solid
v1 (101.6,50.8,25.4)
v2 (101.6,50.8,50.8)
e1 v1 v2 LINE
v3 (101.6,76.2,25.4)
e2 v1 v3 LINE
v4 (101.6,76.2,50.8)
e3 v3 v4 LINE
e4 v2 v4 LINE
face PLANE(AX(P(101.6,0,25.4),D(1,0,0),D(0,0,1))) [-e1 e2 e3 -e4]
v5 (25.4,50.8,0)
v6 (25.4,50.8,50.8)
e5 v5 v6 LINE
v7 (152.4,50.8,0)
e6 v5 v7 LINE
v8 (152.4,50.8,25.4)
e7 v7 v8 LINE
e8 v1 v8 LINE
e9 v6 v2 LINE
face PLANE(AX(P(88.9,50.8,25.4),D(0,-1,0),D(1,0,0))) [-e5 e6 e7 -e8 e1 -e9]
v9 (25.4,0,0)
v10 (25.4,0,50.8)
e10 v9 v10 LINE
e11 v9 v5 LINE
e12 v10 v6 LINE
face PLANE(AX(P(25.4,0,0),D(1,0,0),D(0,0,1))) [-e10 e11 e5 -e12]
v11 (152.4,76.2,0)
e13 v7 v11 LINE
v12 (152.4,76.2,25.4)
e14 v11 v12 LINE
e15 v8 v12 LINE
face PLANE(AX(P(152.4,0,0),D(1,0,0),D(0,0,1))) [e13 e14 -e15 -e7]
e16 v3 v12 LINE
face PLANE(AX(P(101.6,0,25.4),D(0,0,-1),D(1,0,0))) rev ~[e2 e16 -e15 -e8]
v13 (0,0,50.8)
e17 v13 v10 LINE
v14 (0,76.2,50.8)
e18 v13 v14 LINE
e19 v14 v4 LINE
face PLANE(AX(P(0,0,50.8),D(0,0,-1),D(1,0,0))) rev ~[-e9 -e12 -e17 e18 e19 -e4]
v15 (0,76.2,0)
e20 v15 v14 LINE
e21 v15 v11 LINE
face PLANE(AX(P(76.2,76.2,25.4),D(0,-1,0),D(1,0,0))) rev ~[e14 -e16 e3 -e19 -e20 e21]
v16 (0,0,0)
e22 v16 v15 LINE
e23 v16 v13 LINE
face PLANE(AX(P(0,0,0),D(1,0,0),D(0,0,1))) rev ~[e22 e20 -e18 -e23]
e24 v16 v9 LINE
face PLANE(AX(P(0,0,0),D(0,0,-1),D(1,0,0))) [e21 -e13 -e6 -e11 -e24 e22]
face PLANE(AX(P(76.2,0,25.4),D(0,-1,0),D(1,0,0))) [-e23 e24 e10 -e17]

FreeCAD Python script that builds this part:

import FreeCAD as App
import Part
import Sketcher
Q = App.Units.Quantity

doc = App.newDocument("Part")
body = doc.addObject("PartDesign::Body", "Body")

sketch1 = body.newObject("Sketcher::SketchObject", "Sketch")
sketch1.AttachmentSupport = (doc.getObject("XZ_Plane"), [""])
sketch1.MapMode = "FlatFace"
sketch1.addGeometry([
    Part.LineSegment(App.Vector(0, 51, 0), App.Vector(0, 0, 0)),
    Part.LineSegment(App.Vector(0, 0, 0), App.Vector(152, 0, 0)),
    Part.LineSegment(App.Vector(152, 0, 0), App.Vector(152, 51, 0)),
    Part.LineSegment(App.Vector(152, 51, 0), App.Vector(0, 51, 0)),
], False)
sketch1.addConstraint([
    Sketcher.Constraint("Coincident", 0, 2, 1, 1),
    Sketcher.Constraint("Coincident", 1, 2, 2, 1),
    Sketcher.Constraint("Coincident", 2, 2, 3, 1),
    Sketcher.Constraint("Coincident", 3, 2, 0, 1),
    Sketcher.Constraint("Vertical", 0),
    Sketcher.Constraint("Horizontal", 1),
    Sketcher.Constraint("Vertical", 2),
    Sketcher.Constraint("Horizontal", 3),
    Sketcher.Constraint("Coincident", 0, 2, -1, 1),
    Sketcher.Constraint("DistanceX", 1, 1, 1, 2, Q("6 in")),
    Sketcher.Constraint("DistanceY", 0, 2, 0, 1, Q("2 in")),
])
pad1 = body.newObject("PartDesign::Pad", "Pad")
pad1.Profile = sketch1
pad1.Length = Q("3 in")
pad1.Reversed = True

sketch2 = body.newObject("Sketcher::SketchObject", "Sketch001")
sketch2.AttachmentSupport = (doc.getObject("XZ_Plane"), [""])
sketch2.MapMode = "FlatFace"
sketch2.addGeometry([
    Part.LineSegment(App.Vector(25, 51, 0), App.Vector(25, 0, 0)),
    Part.LineSegment(App.Vector(25, 0, 0), App.Vector(152, 0, 0)),
    Part.LineSegment(App.Vector(152, 0, 0), App.Vector(152, 51, 0)),
    Part.LineSegment(App.Vector(152, 51, 0), App.Vector(25, 51, 0)),
], False)
sketch2.addConstraint([
    Sketcher.Constraint("Coincident", 0, 2, 1, 1),
    Sketcher.Constraint("Coincident", 1, 2, 2, 1),
    Sketcher.Constraint("Coincident", 2, 2, 3, 1),
    Sketcher.Constraint("Coincident", 3, 2, 0, 1),
    Sketcher.Constraint("Vertical", 0),
    Sketcher.Constraint("Horizontal", 1),
    Sketcher.Constraint("Vertical", 2),
    Sketcher.Constraint("Horizontal", 3),
    Sketcher.Constraint("PointOnObject", 0, 2, -1),
    Sketcher.Constraint("DistanceX", 1, 1, 1, 2, Q("5 in")),
    Sketcher.Constraint("DistanceY", 0, 2, 0, 1, Q("2 in")),
    Sketcher.Constraint("DistanceX", -1, 1, 0, 2, Q("1 in")),
])
pocket1 = body.newObject("PartDesign::Pocket", "Pocket")
pocket1.Profile = sketch2
pocket1.Length = Q("2 in")

sketch3 = body.newObject("Sketcher::SketchObject", "Sketch002")
sketch3.AttachmentSupport = (doc.getObject("XZ_Plane"), [""])
sketch3.MapMode = "FlatFace"
sketch3.addGeometry([
    Part.LineSegment(App.Vector(102, 51, 0), App.Vector(102, 25, 0)),
    Part.LineSegment(App.Vector(102, 25, 0), App.Vector(152, 25, 0)),
    Part.LineSegment(App.Vector(152, 25, 0), App.Vector(152, 51, 0)),
    Part.LineSegment(App.Vector(152, 51, 0), App.Vector(102, 51, 0)),
], False)
sketch3.addConstraint([
    Sketcher.Constraint("Coincident", 0, 2, 1, 1),
    Sketcher.Constraint("Coincident", 1, 2, 2, 1),
    Sketcher.Constraint("Coincident", 2, 2, 3, 1),
    Sketcher.Constraint("Coincident", 3, 2, 0, 1),
    Sketcher.Constraint("Vertical", 0),
    Sketcher.Constraint("Horizontal", 1),
    Sketcher.Constraint("Vertical", 2),
    Sketcher.Constraint("Horizontal", 3),
    Sketcher.Constraint("DistanceX", 1, 1, 1, 2, Q("2 in")),
    Sketcher.Constraint("DistanceY", 0, 2, 0, 1, Q("1 in")),
    Sketcher.Constraint("DistanceX", -1, 1, 0, 2, Q("4 in")),
    Sketcher.Constraint("DistanceY", -1, 1, 0, 2, Q("1 in")),
])
pocket2 = body.newObject("PartDesign::Pocket", "Pocket001")
pocket2.Profile = sketch3
pocket2.Length = Q("3 in")

doc.recompute()
